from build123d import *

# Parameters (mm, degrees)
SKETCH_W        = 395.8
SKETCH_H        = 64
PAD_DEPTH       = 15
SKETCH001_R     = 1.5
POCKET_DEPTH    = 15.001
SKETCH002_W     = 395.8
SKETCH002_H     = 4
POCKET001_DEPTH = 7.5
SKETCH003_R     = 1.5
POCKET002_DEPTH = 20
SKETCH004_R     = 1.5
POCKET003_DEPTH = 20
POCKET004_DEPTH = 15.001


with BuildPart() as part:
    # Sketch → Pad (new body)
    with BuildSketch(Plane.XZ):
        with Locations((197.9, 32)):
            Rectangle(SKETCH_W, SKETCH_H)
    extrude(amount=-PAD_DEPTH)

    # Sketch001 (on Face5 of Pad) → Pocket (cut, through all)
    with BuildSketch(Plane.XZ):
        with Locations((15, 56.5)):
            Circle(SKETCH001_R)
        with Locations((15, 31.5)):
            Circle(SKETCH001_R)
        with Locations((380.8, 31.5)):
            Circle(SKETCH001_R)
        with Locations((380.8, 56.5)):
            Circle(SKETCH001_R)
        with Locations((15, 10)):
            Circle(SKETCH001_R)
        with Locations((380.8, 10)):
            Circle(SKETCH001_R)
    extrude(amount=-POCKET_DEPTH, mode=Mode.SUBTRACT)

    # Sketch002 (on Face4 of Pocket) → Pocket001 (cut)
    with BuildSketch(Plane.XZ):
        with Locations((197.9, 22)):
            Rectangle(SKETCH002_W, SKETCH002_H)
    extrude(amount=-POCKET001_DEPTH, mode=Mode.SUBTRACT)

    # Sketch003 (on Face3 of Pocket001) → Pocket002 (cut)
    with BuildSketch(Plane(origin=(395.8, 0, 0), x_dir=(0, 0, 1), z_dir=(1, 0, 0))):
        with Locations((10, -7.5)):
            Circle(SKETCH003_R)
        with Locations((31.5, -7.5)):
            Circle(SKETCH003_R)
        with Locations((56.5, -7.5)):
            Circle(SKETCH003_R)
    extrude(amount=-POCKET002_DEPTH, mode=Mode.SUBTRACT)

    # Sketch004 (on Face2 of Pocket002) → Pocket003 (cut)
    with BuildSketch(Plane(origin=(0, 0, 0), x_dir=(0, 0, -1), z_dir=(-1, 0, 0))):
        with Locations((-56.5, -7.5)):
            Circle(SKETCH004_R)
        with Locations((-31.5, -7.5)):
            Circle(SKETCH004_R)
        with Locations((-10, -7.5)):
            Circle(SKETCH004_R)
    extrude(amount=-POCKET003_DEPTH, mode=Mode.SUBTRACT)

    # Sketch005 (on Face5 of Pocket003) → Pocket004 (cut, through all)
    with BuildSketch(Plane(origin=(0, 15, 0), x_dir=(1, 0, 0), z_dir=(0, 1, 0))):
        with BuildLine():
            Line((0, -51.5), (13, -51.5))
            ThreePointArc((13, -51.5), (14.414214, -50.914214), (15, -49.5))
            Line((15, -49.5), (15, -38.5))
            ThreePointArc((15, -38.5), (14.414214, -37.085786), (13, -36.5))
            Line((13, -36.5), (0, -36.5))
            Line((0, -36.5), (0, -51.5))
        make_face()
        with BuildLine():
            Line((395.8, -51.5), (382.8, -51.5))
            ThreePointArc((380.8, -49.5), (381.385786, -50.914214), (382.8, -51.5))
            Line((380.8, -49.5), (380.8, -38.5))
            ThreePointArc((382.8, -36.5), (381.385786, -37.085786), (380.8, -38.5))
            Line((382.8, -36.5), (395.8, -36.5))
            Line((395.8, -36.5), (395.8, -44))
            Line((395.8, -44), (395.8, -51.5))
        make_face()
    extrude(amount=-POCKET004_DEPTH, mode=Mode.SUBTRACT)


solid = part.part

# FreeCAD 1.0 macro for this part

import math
import FreeCAD as App
import Part
import Sketcher

doc = App.newDocument("Part")
body = doc.addObject("PartDesign::Body", "Body")

# Sketch on XZ plane
sketch1 = body.newObject("Sketcher::SketchObject", "Sketch")
sketch1.AttachmentSupport = (doc.getObject("XZ_Plane"), [""])
sketch1.MapMode = "FlatFace"
sketch1.addGeometry([
    Part.LineSegment(App.Vector(0, 64, 0), App.Vector(0, 0, 0)),
    Part.LineSegment(App.Vector(0, 0, 0), App.Vector(396, 0, 0)),
    Part.LineSegment(App.Vector(396, 0, 0), App.Vector(396, 64, 0)),
    Part.LineSegment(App.Vector(396, 64, 0), App.Vector(0, 64, 0)),
], False)
sketch1.addConstraint([
    Sketcher.Constraint("Coincident", 0, 2, 1, 1),
    Sketcher.Constraint("Coincident", 1, 2, 2, 1),
    Sketcher.Constraint("Coincident", 2, 2, 3, 1),
    Sketcher.Constraint("Coincident", 3, 2, 0, 1),
    Sketcher.Constraint("Vertical", 0),
    Sketcher.Constraint("Horizontal", 1),
    Sketcher.Constraint("Vertical", 2),
    Sketcher.Constraint("Horizontal", 3),
    Sketcher.Constraint("Coincident", 0, 2, -1, 1),
    Sketcher.Constraint("DistanceY", 0, 2, 0, 1, 64.0),
    Sketcher.Constraint("DistanceX", 1, 1, 1, 2, 395.8),
])
pad1 = body.newObject("PartDesign::Pad", "Pad")
pad1.Profile = sketch1
pad1.Length = 15
pad1.Reversed = True

# Sketch on XZ plane
sketch2 = body.newObject("Sketcher::SketchObject", "Sketch001")
sketch2.AttachmentSupport = (doc.getObject("XZ_Plane"), [""])
sketch2.MapMode = "FlatFace"
sketch2.addGeometry([
    Part.Circle(App.Vector(15, 56.5, 0), App.Vector(0, 0, 1), 1.5),  # 0
    Part.Circle(App.Vector(15, 31.5, 0), App.Vector(0, 0, 1), 1.5),  # 1
    Part.Circle(App.Vector(380.8, 31.5, 0), App.Vector(0, 0, 1), 1.5),  # 2
    Part.Circle(App.Vector(380.8, 56.5, 0), App.Vector(0, 0, 1), 1.5),  # 3
    Part.Circle(App.Vector(15, 10, 0), App.Vector(0, 0, 1), 1.5),  # 4
    Part.Circle(App.Vector(380.8, 10, 0), App.Vector(0, 0, 1), 1.5),  # 5
], False)
sketch2.addConstraint([
    Sketcher.Constraint("Equal", 0, 1),
    Sketcher.Constraint("Equal", 1, 2),
    Sketcher.Constraint("Equal", 2, 3),
    Sketcher.Constraint("Equal", 3, 4),
    Sketcher.Constraint("Equal", 4, 5),
    Sketcher.Constraint("Horizontal", 1, 3, 2, 3),
    Sketcher.Constraint("Horizontal", 0, 3, 3, 3),
    Sketcher.Constraint("Horizontal", 4, 3, 5, 3),
    Sketcher.Constraint("Vertical", 0, 3, 1, 3),
    Sketcher.Constraint("Vertical", 2, 3, 3, 3),
    Sketcher.Constraint("Vertical", 1, 3, 4, 3),
    Sketcher.Constraint("Vertical", 3, 3, 5, 3),
    Sketcher.Constraint("Diameter", 0, 3.0),
    Sketcher.Constraint("DistanceX", -1, 1, 0, 3, 15.0),
    Sketcher.Constraint("DistanceY", -1, 1, 4, 3, 10.0),
    Sketcher.Constraint("DistanceY", 1, 3, 0, 3, 25.0),
    Sketcher.Constraint("DistanceY", -1, 1, 0, 3, 56.5),
    Sketcher.Constraint("DistanceX", -1, 1, 2, 3, 380.8),
])
pocket1 = body.newObject("PartDesign::Pocket", "Pocket")
pocket1.Profile = sketch2
pocket1.Type = "ThroughAll"

# Sketch on XZ plane
sketch3 = body.newObject("Sketcher::SketchObject", "Sketch002")
sketch3.AttachmentSupport = (doc.getObject("XZ_Plane"), [""])
sketch3.MapMode = "FlatFace"
sketch3.addGeometry([
    Part.LineSegment(App.Vector(0, 24, 0), App.Vector(0, 20, 0)),
    Part.LineSegment(App.Vector(0, 20, 0), App.Vector(395.8, 20, 0)),
    Part.LineSegment(App.Vector(395.8, 20, 0), App.Vector(395.8, 24, 0)),
    Part.LineSegment(App.Vector(395.8, 24, 0), App.Vector(0, 24, 0)),
], False)
sketch3.addConstraint([
    Sketcher.Constraint("Coincident", 0, 2, 1, 1),
    Sketcher.Constraint("Coincident", 1, 2, 2, 1),
    Sketcher.Constraint("Coincident", 2, 2, 3, 1),
    Sketcher.Constraint("Coincident", 3, 2, 0, 1),
    Sketcher.Constraint("Vertical", 0),
    Sketcher.Constraint("Horizontal", 1),
    Sketcher.Constraint("Vertical", 2),
    Sketcher.Constraint("Horizontal", 3),
    Sketcher.Constraint("PointOnObject", 0, 2, -2),
    Sketcher.Constraint("DistanceY", 0, 2, 0, 1, 4.0),
    Sketcher.Constraint("DistanceX", 1, 1, 1, 2, 395.8),
    Sketcher.Constraint("DistanceY", -1, 1, 0, 2, 20.0),
])
pocket2 = body.newObject("PartDesign::Pocket", "Pocket001")
pocket2.Profile = sketch3
pocket2.Length = 7.5

# Sketch on YZ plane
sketch4 = body.newObject("Sketcher::SketchObject", "Sketch003")
sketch4.AttachmentSupport = (doc.getObject("YZ_Plane"), [""])
sketch4.MapMode = "FlatFace"
sketch4.AttachmentOffset = App.Placement(App.Vector(0, 0, 395.8), App.Rotation())
sketch4.addGeometry([
    Part.Circle(App.Vector(7.5, 10, 0), App.Vector(0, 0, 1), 1.5),
    Part.Circle(App.Vector(7.5, 31.5, 0), App.Vector(0, 0, 1), 1.5),
    Part.Circle(App.Vector(7.5, 56.5, 0), App.Vector(0, 0, 1), 1.5),
], False)
sketch4.addConstraint([
    Sketcher.Constraint("Equal", 0, 1),
    Sketcher.Constraint("Equal", 1, 2),
    Sketcher.Constraint("Vertical", 0, 3, 1, 3),
    Sketcher.Constraint("Vertical", 1, 3, 2, 3),
    Sketcher.Constraint("Diameter", 0, 3.0),
    Sketcher.Constraint("DistanceY", -1, 1, 0, 3, 10.0),
    Sketcher.Constraint("DistanceY", 1, 3, 2, 3, 25.0),
    Sketcher.Constraint("DistanceX", -1, 1, 0, 3, 7.5),
    Sketcher.Constraint("DistanceY", -1, 1, 1, 3, 31.5),
])
pocket3 = body.newObject("PartDesign::Pocket", "Pocket002")
pocket3.Profile = sketch4
pocket3.Length = 20

# Sketch on YZ plane
sketch5 = body.newObject("Sketcher::SketchObject", "Sketch004")
sketch5.AttachmentSupport = (doc.getObject("YZ_Plane"), [""])
sketch5.MapMode = "FlatFace"
sketch5.addGeometry([
    Part.Circle(App.Vector(7.5, 56.5, 0), App.Vector(0, 0, 1), 1.5),
    Part.Circle(App.Vector(7.5, 31.5, 0), App.Vector(0, 0, 1), 1.5),
    Part.Circle(App.Vector(7.5, 10, 0), App.Vector(0, 0, 1), 1.5),
], False)
sketch5.addConstraint([
    Sketcher.Constraint("Equal", 0, 1),
    Sketcher.Constraint("Equal", 1, 2),
    Sketcher.Constraint("Vertical", 0, 3, 1, 3),
    Sketcher.Constraint("Vertical", 1, 3, 2, 3),
    Sketcher.Constraint("Diameter", 0, 3.0),
    Sketcher.Constraint("DistanceY", -1, 1, 2, 3, 10.0),
    Sketcher.Constraint("DistanceY", 1, 3, 0, 3, 25.0),
    Sketcher.Constraint("DistanceX", -1, 1, 0, 3, 7.5),
    Sketcher.Constraint("DistanceY", -1, 1, 0, 3, 56.5),
])
pocket4 = body.newObject("PartDesign::Pocket", "Pocket003")
pocket4.Profile = sketch5
pocket4.Length = 20
pocket4.Reversed = True

# Sketch on XZ plane
sketch6 = body.newObject("Sketcher::SketchObject", "Sketch005")
sketch6.AttachmentSupport = (doc.getObject("XZ_Plane"), [""])
sketch6.MapMode = "FlatFace"
sketch6.AttachmentOffset = App.Placement(App.Vector(0, 0, -15), App.Rotation())
sketch6.addGeometry([
    Part.LineSegment(App.Vector(0, 51.5, 0), App.Vector(13, 51.5, 0)),  # 0
    Part.ArcOfCircle(Part.Circle(App.Vector(13, 49.5, 0), App.Vector(0, 0, 1), 2), math.radians(0), math.radians(90)),  # 1
    Part.LineSegment(App.Vector(15, 49.5, 0), App.Vector(15, 38.5, 0)),  # 2
    Part.ArcOfCircle(Part.Circle(App.Vector(13, 38.5, 0), App.Vector(0, 0, 1), 2), math.radians(-90), math.radians(0)),  # 3
    Part.LineSegment(App.Vector(13, 36.5, 0), App.Vector(0, 36.5, 0)),  # 4
    Part.LineSegment(App.Vector(0, 36.5, 0), App.Vector(0, 51.5, 0)),  # 5
    Part.LineSegment(App.Vector(382.8, 51.5, 0), App.Vector(395.8, 51.5, 0)),  # 6
    Part.LineSegment(App.Vector(395.8, 51.5, 0), App.Vector(395.8, 36.5, 0)),  # 7
    Part.LineSegment(App.Vector(395.8, 36.5, 0), App.Vector(382.8, 36.5, 0)),  # 8
    Part.ArcOfCircle(Part.Circle(App.Vector(382.8, 38.5, 0), App.Vector(0, 0, 1), 2), math.radians(180), math.radians(270)),  # 9
    Part.LineSegment(App.Vector(380.8, 38.5, 0), App.Vector(380.8, 49.5, 0)),  # 10
    Part.ArcOfCircle(Part.Circle(App.Vector(382.8, 49.5, 0), App.Vector(0, 0, 1), 2), math.radians(90), math.radians(180)),  # 11
], False)
sketch6.addConstraint([
    Sketcher.Constraint("Tangent", 0, 2, 1, 2),
    Sketcher.Constraint("Tangent", 1, 1, 2, 1),
    Sketcher.Constraint("Tangent", 2, 2, 3, 2),
    Sketcher.Constraint("Tangent", 3, 1, 4, 1),
    Sketcher.Constraint("Coincident", 4, 2, 5, 1),
    Sketcher.Constraint("Coincident", 5, 2, 0, 1),
    Sketcher.Constraint("Coincident", 6, 2, 7, 1),
    Sketcher.Constraint("Coincident", 7, 2, 8, 1),
    Sketcher.Constraint("Tangent", 8, 2, 9, 2),
    Sketcher.Constraint("Tangent", 9, 1, 10, 1),
    Sketcher.Constraint("Tangent", 10, 2, 11, 2),
    Sketcher.Constraint("Tangent", 11, 1, 6, 1),
    Sketcher.Constraint("Horizontal", 0),
    Sketcher.Constraint("Vertical", 2),
    Sketcher.Constraint("Horizontal", 4),
    Sketcher.Constraint("Vertical", 5),
    Sketcher.Constraint("Horizontal", 6),
    Sketcher.Constraint("Vertical", 7),
    Sketcher.Constraint("Horizontal", 8),
    Sketcher.Constraint("Vertical", 10),
    Sketcher.Constraint("Equal", 1, 3),
    Sketcher.Constraint("Equal", 3, 9),
    Sketcher.Constraint("Equal", 9, 11),
    Sketcher.Constraint("PointOnObject", 4, 2, -2),
    Sketcher.Constraint("Horizontal", 3, 3, 9, 3),
    Sketcher.Constraint("Horizontal", 1, 3, 11, 3),
    Sketcher.Constraint("Equal", 4, 6),
    Sketcher.Constraint("Radius", 1, 1.999999),
    Sketcher.Constraint("DistanceX", 0, 1, 0, 2, 13.0),
    Sketcher.Constraint("DistanceY", 2, 2, 2, 1, 11.0),
    Sketcher.Constraint("DistanceY", -1, 1, 1, 3, 49.500001),
    Sketcher.Constraint("DistanceX", -1, 1, 9, 3, 382.799999),
])
pocket5 = body.newObject("PartDesign::Pocket", "Pocket004")
pocket5.Profile = sketch6
pocket5.Type = "ThroughAll"
pocket5.Reversed = True

doc.recompute()
